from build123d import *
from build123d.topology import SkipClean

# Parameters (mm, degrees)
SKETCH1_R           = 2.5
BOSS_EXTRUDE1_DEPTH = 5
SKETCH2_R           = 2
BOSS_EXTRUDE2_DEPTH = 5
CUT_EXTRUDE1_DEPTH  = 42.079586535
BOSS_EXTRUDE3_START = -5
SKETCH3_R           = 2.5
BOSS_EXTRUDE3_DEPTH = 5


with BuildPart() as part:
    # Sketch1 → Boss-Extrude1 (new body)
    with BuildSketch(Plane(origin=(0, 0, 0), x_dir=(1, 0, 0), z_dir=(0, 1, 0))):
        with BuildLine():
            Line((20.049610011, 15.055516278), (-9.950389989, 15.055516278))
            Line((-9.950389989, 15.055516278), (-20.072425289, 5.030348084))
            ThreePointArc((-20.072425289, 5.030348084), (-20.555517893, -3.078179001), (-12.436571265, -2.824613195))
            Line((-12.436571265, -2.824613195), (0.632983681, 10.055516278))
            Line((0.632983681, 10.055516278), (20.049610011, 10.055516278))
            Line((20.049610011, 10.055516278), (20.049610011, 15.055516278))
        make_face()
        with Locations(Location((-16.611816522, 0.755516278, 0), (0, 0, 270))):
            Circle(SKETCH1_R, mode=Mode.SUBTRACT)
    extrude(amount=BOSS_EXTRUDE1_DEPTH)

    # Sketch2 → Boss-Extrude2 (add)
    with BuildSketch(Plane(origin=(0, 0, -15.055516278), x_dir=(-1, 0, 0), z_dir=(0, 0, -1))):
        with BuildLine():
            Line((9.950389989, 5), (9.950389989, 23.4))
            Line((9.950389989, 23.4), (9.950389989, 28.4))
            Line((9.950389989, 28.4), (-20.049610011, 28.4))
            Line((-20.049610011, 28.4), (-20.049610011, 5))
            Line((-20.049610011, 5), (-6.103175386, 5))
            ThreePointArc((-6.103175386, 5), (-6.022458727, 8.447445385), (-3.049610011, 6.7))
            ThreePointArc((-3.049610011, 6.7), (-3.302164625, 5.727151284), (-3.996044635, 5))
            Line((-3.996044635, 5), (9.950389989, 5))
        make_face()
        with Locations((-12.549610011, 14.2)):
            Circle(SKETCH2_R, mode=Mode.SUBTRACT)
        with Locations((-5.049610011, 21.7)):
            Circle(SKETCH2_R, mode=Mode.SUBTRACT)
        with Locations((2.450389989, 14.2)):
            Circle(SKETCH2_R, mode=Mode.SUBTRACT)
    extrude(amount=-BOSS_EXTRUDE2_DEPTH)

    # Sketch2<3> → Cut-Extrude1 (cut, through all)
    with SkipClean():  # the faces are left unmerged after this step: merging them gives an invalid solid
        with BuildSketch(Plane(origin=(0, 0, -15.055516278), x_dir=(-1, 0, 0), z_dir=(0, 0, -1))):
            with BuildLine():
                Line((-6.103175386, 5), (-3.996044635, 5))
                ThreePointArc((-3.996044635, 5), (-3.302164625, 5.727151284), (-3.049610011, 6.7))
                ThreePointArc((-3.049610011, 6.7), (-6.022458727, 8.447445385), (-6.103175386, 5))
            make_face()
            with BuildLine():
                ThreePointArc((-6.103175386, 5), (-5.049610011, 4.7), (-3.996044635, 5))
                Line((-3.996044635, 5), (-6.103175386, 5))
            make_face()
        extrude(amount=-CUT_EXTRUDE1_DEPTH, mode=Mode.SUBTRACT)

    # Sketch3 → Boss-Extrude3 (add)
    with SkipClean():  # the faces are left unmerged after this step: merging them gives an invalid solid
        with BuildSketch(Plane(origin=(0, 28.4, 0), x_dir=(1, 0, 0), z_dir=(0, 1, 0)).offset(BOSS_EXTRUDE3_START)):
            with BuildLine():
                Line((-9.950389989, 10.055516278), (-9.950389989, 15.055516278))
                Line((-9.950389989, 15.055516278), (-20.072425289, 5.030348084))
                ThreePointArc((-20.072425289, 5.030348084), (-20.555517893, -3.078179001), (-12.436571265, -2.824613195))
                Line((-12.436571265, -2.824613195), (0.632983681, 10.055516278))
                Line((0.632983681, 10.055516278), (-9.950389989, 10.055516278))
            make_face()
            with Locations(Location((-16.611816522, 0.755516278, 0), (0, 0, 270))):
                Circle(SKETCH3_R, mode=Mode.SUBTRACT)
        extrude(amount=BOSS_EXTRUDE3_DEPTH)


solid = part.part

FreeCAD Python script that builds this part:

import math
import FreeCAD as App
import Part
import Sketcher

V = App.Vector

doc = App.newDocument("Part")
body = doc.addObject("PartDesign::Body", "Body")

# Sketch on XZ plane
sketch1 = body.newObject("Sketcher::SketchObject", "Sketch")
sketch1.AttachmentSupport = (doc.getObject("XZ_Plane"), [""])
sketch1.MapMode = "FlatFace"
sketch1.addGeometry(Part.LineSegment(V(20, -15.1, 0), V(-10, -15.1, 0)), False)
sketch1.addGeometry(Part.LineSegment(V(-10, -15.1, 0), V(-20.1, -5, 0)), False)
sketch1.addGeometry(Part.ArcOfCircle(Part.Circle(V(-16.6, -0.8, 0), V(0, 0, 1), 5.5), math.radians(41), math.radians(231)), False)
sketch1.addGeometry(Part.LineSegment(V(-12.4, 2.8, 0), V(0.6, -10.1, 0)), False)
sketch1.addGeometry(Part.LineSegment(V(0.6, -10.1, 0), V(20, -10.1, 0)), False)
sketch1.addGeometry(Part.LineSegment(V(20, -10.1, 0), V(20, -15.1, 0)), False)
sketch1.addGeometry(Part.Circle(V(-16.6, -0.8, 0), V(0, 0, 1), 2.5), False)
sketch1.addConstraint(Sketcher.Constraint("Coincident", 0, 2, 1, 1))
sketch1.addConstraint(Sketcher.Constraint("Coincident", 1, 2, 2, 2))
sketch1.addConstraint(Sketcher.Constraint("Coincident", 2, 1, 3, 1))
sketch1.addConstraint(Sketcher.Constraint("Coincident", 3, 2, 4, 1))
sketch1.addConstraint(Sketcher.Constraint("Coincident", 4, 2, 5, 1))
sketch1.addConstraint(Sketcher.Constraint("Coincident", 5, 2, 0, 1))
sketch1.addConstraint(Sketcher.Constraint("Horizontal", 0))
sketch1.addConstraint(Sketcher.Constraint("Horizontal", 4))
sketch1.addConstraint(Sketcher.Constraint("Vertical", 5))
sketch1.addConstraint(Sketcher.Constraint("Coincident", 6, 3, 2, 3))
sketch1.addConstraint(Sketcher.Constraint("Diameter", 6, 5.0))
sketch1.addConstraint(Sketcher.Constraint("Radius", 2, 5.5))
sketch1.addConstraint(Sketcher.Constraint("DistanceX", 0, 2, 0, 1, 30.0))
sketch1.addConstraint(Sketcher.Constraint("DistanceY", 5, 2, 5, 1, 5.0))
sketch1.addConstraint(Sketcher.Constraint("DistanceY", 0, 2, 2, 3, 14.3))
sketch1.addConstraint(Sketcher.Constraint("DistanceX", 2, 3, 3, 2, 17.2448))
sketch1.addConstraint(Sketcher.Constraint("Distance", 1, 14.246389))
sketch1.addConstraint(Sketcher.Constraint("DistanceX", 4, 1, 4, 2, 19.416626))
sketch1.addConstraint(Sketcher.Constraint("DistanceX", 0, 2, -1, 1, 9.95039))
sketch1.addConstraint(Sketcher.Constraint("DistanceY", 1, 2, -1, 1, 5.030348))
sketch1.addConstraint(Sketcher.Constraint("DistanceX", 2, 1, -1, 1, 12.436571))
pad1 = body.newObject("PartDesign::Pad", "Pad")
pad1.Profile = sketch1
pad1.Length = 5
pad1.Reversed = True

# Sketch on XY plane
sketch2 = body.newObject("Sketcher::SketchObject", "Sketch001")
sketch2.AttachmentSupport = (doc.getObject("XY_Plane"), [""])
sketch2.MapMode = "FlatFace"
sketch2.AttachmentOffset = App.Placement(V(0, 0, -15.055516), App.Rotation())
sketch2.addGeometry(Part.LineSegment(V(-10, 5, 0), V(-10, 28.4, 0)), False)
sketch2.addGeometry(Part.LineSegment(V(-10, 28.4, 0), V(20, 28.4, 0)), False)
sketch2.addGeometry(Part.LineSegment(V(20, 28.4, 0), V(20, 5, 0)), False)
sketch2.addGeometry(Part.LineSegment(V(20, 5, 0), V(6.1, 5, 0)), False)
sketch2.addGeometry(Part.ArcOfCircle(Part.Circle(V(5, 6.7, 0), V(0, 0, 1), 2), math.radians(-58), math.radians(180)), False)
sketch2.addGeometry(Part.ArcOfCircle(Part.Circle(V(5, 6.7, 0), V(0, 0, 1), 2), math.radians(180), math.radians(238)), False)
sketch2.addGeometry(Part.LineSegment(V(4, 5, 0), V(-10, 5, 0)), False)
sketch2.addGeometry(Part.Circle(V(12.5, 14.2, 0), V(0, 0, 1), 2), False)
sketch2.addGeometry(Part.Circle(V(-2.5, 14.2, 0), V(0, 0, 1), 2), False)
sketch2.addGeometry(Part.Circle(V(5, 21.7, 0), V(0, 0, 1), 2), False)
sketch2.addConstraint(Sketcher.Constraint("Coincident", 0, 2, 1, 1))
sketch2.addConstraint(Sketcher.Constraint("Coincident", 1, 2, 2, 1))
sketch2.addConstraint(Sketcher.Constraint("Coincident", 2, 2, 3, 1))
sketch2.addConstraint(Sketcher.Constraint("Coincident", 3, 2, 4, 1))
sketch2.addConstraint(Sketcher.Constraint("Tangent", 4, 2, 5, 1))
sketch2.addConstraint(Sketcher.Constraint("Coincident", 5, 2, 6, 1))
sketch2.addConstraint(Sketcher.Constraint("Coincident", 6, 2, 0, 1))
sketch2.addConstraint(Sketcher.Constraint("Vertical", 0))
sketch2.addConstraint(Sketcher.Constraint("Horizontal", 1))
sketch2.addConstraint(Sketcher.Constraint("Vertical", 2))
sketch2.addConstraint(Sketcher.Constraint("Horizontal", 3))
sketch2.addConstraint(Sketcher.Constraint("Horizontal", 6))
sketch2.addConstraint(Sketcher.Constraint("Equal", 4, 5))
sketch2.addConstraint(Sketcher.Constraint("Equal", 5, 7))
sketch2.addConstraint(Sketcher.Constraint("Equal", 7, 8))
sketch2.addConstraint(Sketcher.Constraint("Equal", 8, 9))
sketch2.addConstraint(Sketcher.Constraint("Horizontal", 7, 3, 8, 3))
sketch2.addConstraint(Sketcher.Constraint("Horizontal", 5, 3, 4, 2))
sketch2.addConstraint(Sketcher.Constraint("Horizontal", 3, 2, 5, 2))
sketch2.addConstraint(Sketcher.Constraint("Vertical", 5, 3, 9, 3))
sketch2.addConstraint(Sketcher.Constraint("Equal", 3, 6))
sketch2.addConstraint(Sketcher.Constraint("Diameter", 7, 4.0))
sketch2.addConstraint(Sketcher.Constraint("DistanceX", 1, 1, 1, 2, 30.0))
sketch2.addConstraint(Sketcher.Constraint("DistanceY", 0, 1, 0, 2, 23.4))
sketch2.addConstraint(Sketcher.Constraint("DistanceY", -1, 1, 2, 2, 5.0))
sketch2.addConstraint(Sketcher.Constraint("DistanceX", 8, 3, 7, 3, 15.0))
sketch2.addConstraint(Sketcher.Constraint("DistanceY", 4, 3, 9, 3, 15.0))
sketch2.addConstraint(Sketcher.Constraint("DistanceY", -1, 1, 4, 3, 6.7))
sketch2.addConstraint(Sketcher.Constraint("DistanceY", -1, 1, 7, 3, 14.2))
sketch2.addConstraint(Sketcher.Constraint("DistanceX", 4, 3, 7, 3, 7.5))
sketch2.addConstraint(Sketcher.Constraint("DistanceX", -1, 1, 4, 3, 5.04961))
pad2 = body.newObject("PartDesign::Pad", "Pad001")
pad2.Profile = sketch2
pad2.Length = 5

# Sketch on XY plane
sketch3 = body.newObject("Sketcher::SketchObject", "Sketch002")
sketch3.AttachmentSupport = (doc.getObject("XY_Plane"), [""])
sketch3.MapMode = "FlatFace"
sketch3.AttachmentOffset = App.Placement(V(0, 0, -15.055516), App.Rotation())
sketch3.addGeometry(Part.LineSegment(V(6.1, 5, 0), V(4, 5, 0)), False)
sketch3.addGeometry(Part.ArcOfCircle(Part.Circle(V(5, 6.7, 0), V(0, 0, 1), 2), math.radians(180), math.radians(238)), False)
sketch3.addGeometry(Part.ArcOfCircle(Part.Circle(V(5, 6.7, 0), V(0, 0, 1), 2), math.radians(-58), math.radians(180)), False)
sketch3.addGeometry(Part.ArcOfCircle(Part.Circle(V(5, 6.7, 0), V(0, 0, 1), 2), math.radians(-122), math.radians(-58)), False)
sketch3.addGeometry(Part.LineSegment(V(4, 5, 0), V(6.1, 5, 0)), False)
sketch3.addConstraint(Sketcher.Constraint("Coincident", 0, 2, 1, 2))
sketch3.addConstraint(Sketcher.Constraint("Tangent", 1, 1, 2, 2))
sketch3.addConstraint(Sketcher.Constraint("Coincident", 2, 1, 0, 1))
sketch3.addConstraint(Sketcher.Constraint("Coincident", 3, 1, 4, 1))
sketch3.addConstraint(Sketcher.Constraint("Coincident", 4, 2, 3, 2))
sketch3.addConstraint(Sketcher.Constraint("Horizontal", 0))
sketch3.addConstraint(Sketcher.Constraint("Horizontal", 4))
sketch3.addConstraint(Sketcher.Constraint("Coincident", 3, 3, 1, 3))
sketch3.addConstraint(Sketcher.Constraint("Coincident", 3, 1, 0, 2))
sketch3.addConstraint(Sketcher.Constraint("Equal", 1, 2))
sketch3.addConstraint(Sketcher.Constraint("Horizontal", 3, 3, 1, 1))
sketch3.addConstraint(Sketcher.Constraint("Radius", 1, 2.0))
sketch3.addConstraint(Sketcher.Constraint("DistanceY", -1, 1, 0, 2, 5.0))
sketch3.addConstraint(Sketcher.Constraint("DistanceY", -1, 1, 1, 3, 6.7))
sketch3.addConstraint(Sketcher.Constraint("DistanceX", -1, 1, 1, 3, 5.04961))
pocket1 = body.newObject("PartDesign::Pocket", "Pocket")
pocket1.Profile = sketch3
pocket1.Type = "ThroughAll"
pocket1.Reversed = True

# Sketch on XZ plane
sketch4 = body.newObject("Sketcher::SketchObject", "Sketch003")
sketch4.AttachmentSupport = (doc.getObject("XZ_Plane"), [""])
sketch4.MapMode = "FlatFace"
sketch4.AttachmentOffset = App.Placement(V(0, 0, -23.4), App.Rotation())
sketch4.addGeometry(Part.LineSegment(V(-10, -10.1, 0), V(-10, -15.1, 0)), False)
sketch4.addGeometry(Part.LineSegment(V(-10, -15.1, 0), V(-20.1, -5, 0)), False)
sketch4.addGeometry(Part.ArcOfCircle(Part.Circle(V(-16.6, -0.8, 0), V(0, 0, 1), 5.5), math.radians(41), math.radians(231)), False)
sketch4.addGeometry(Part.LineSegment(V(-12.4, 2.8, 0), V(0.6, -10.1, 0)), False)
sketch4.addGeometry(Part.LineSegment(V(0.6, -10.1, 0), V(-10, -10.1, 0)), False)
sketch4.addGeometry(Part.Circle(V(-16.6, -0.8, 0), V(0, 0, 1), 2.5), False)
sketch4.addConstraint(Sketcher.Constraint("Coincident", 0, 2, 1, 1))
sketch4.addConstraint(Sketcher.Constraint("Coincident", 1, 2, 2, 2))
sketch4.addConstraint(Sketcher.Constraint("Coincident", 2, 1, 3, 1))
sketch4.addConstraint(Sketcher.Constraint("Coincident", 3, 2, 4, 1))
sketch4.addConstraint(Sketcher.Constraint("Coincident", 4, 2, 0, 1))
sketch4.addConstraint(Sketcher.Constraint("Vertical", 0))
sketch4.addConstraint(Sketcher.Constraint("Horizontal", 4))
sketch4.addConstraint(Sketcher.Constraint("Coincident", 5, 3, 2, 3))
sketch4.addConstraint(Sketcher.Constraint("Diameter", 5, 5.0))
sketch4.addConstraint(Sketcher.Constraint("Radius", 2, 5.5))
sketch4.addConstraint(Sketcher.Constraint("DistanceY", 0, 2, 0, 1, 5.0))
sketch4.addConstraint(Sketcher.Constraint("DistanceY", 0, 2, 2, 3, 14.3))
sketch4.addConstraint(Sketcher.Constraint("DistanceX", 2, 3, 3, 2, 17.2448))
sketch4.addConstraint(Sketcher.Constraint("Distance", 1, 14.246389))
sketch4.addConstraint(Sketcher.Constraint("DistanceX", 4, 2, 4, 1, 10.583374))
sketch4.addConstraint(Sketcher.Constraint("DistanceX", 0, 2, -1, 1, 9.95039))
sketch4.addConstraint(Sketcher.Constraint("DistanceY", 1, 2, -1, 1, 5.030348))
sketch4.addConstraint(Sketcher.Constraint("DistanceX", 2, 1, -1, 1, 12.436571))
pad3 = body.newObject("PartDesign::Pad", "Pad002")
pad3.Profile = sketch4
pad3.Length = 5
pad3.Reversed = True

doc.recompute()
